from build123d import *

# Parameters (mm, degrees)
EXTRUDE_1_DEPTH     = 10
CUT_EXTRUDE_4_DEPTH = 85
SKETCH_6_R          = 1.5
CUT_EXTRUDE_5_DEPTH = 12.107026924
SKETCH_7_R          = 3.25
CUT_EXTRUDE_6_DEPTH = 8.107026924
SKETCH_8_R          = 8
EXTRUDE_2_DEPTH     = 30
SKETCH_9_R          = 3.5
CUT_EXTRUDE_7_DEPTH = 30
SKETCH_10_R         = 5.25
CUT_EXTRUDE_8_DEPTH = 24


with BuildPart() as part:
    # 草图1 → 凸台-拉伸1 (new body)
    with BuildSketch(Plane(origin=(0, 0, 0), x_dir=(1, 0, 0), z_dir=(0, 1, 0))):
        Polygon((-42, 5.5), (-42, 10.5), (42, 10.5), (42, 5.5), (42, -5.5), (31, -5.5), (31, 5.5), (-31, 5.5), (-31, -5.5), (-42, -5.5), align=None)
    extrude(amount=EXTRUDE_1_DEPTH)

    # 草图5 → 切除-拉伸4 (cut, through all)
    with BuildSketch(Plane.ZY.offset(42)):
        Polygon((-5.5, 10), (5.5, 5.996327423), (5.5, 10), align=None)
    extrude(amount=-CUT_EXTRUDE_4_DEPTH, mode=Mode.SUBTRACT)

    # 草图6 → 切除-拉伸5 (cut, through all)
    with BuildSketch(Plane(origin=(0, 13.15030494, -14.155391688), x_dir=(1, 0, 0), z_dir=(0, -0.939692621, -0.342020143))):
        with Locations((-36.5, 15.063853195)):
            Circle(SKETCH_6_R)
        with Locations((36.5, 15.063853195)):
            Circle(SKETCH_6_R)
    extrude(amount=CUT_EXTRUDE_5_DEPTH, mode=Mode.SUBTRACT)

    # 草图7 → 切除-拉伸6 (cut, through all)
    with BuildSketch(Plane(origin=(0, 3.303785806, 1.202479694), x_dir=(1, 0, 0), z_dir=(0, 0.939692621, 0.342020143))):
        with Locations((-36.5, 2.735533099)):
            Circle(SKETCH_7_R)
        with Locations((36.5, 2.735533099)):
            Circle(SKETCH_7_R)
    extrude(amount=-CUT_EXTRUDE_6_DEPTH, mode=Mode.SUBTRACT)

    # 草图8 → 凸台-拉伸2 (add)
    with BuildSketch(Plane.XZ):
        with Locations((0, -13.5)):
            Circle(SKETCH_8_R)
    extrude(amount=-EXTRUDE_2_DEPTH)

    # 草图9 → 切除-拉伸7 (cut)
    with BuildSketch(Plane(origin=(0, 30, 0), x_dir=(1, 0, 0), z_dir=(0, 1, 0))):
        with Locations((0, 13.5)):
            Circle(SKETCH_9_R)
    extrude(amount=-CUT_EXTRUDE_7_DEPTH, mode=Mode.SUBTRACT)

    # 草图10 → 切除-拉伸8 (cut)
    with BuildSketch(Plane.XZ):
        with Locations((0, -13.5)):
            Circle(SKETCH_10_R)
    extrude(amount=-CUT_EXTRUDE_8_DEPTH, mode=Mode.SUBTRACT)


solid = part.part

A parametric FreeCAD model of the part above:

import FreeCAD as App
import Part
import Sketcher
from FreeCAD import Vector
Q = App.Units.Quantity


def add_polygon(sketch, points):
    """Adds a closed chain of lines whose ends are joined by coincident constraints."""
    first, n = sketch.GeometryCount, len(points)
    for a, b in zip(points, points[1:] + points[:1]):
        sketch.addGeometry(Part.LineSegment(App.Vector(*a, 0), App.Vector(*b, 0)), False)
    for i in range(n):
        sketch.addConstraint(Sketcher.Constraint("Coincident", first + i, 2, first + (i + 1) % n, 1))

doc = App.newDocument("Part")
body = doc.addObject("PartDesign::Body", "Body")

# Sketch on XZ plane
sketch1 = doc.addObject("Sketcher::SketchObject", "Sketch")
body.addObject(sketch1)
sketch1.AttachmentSupport = (doc.XZ_Plane, [""])
sketch1.MapMode = "FlatFace"
add_polygon(sketch1, [(-42, -10), (-42, 6), (-31, 6), (-31, -6), (31, -6), (31, 6), (42, 6), (42, -10)])  # lines 0-7
sketch1.addConstraint([
    Sketcher.Constraint("Vertical", 0),
    Sketcher.Constraint("Horizontal", 1),
    Sketcher.Constraint("Vertical", 2),
    Sketcher.Constraint("Horizontal", 3),
    Sketcher.Constraint("Vertical", 4),
    Sketcher.Constraint("Horizontal", 5),
    Sketcher.Constraint("Vertical", 6),
    Sketcher.Constraint("Horizontal", 7),
    Sketcher.Constraint("Symmetric", 1, 2, 3, 2, -1, 1),
    Sketcher.Constraint("Symmetric", 0, 2, 5, 2, -2),
    Sketcher.Constraint("Equal", 5, 2),
    Sketcher.Constraint("DistanceX", 1, 1, 1, 2, Q("11 mm")),
    Sketcher.Constraint("DistanceX", 3, 1, 3, 2, Q("62 mm")),
    Sketcher.Constraint("DistanceY", 0, 1, 0, 2, Q("16 mm")),
])
pad1 = doc.addObject("PartDesign::Pad", "Pad")
body.addObject(pad1)
pad1.Profile = sketch1
pad1.Length = 10
pad1.Reversed = True

# Sketch on YZ plane
sketch2 = doc.addObject("Sketcher::SketchObject", "Sketch001")
body.addObject(sketch2)
sketch2.AttachmentSupport = (doc.YZ_Plane, [""])
sketch2.MapMode = "FlatFace"
sketch2.AttachmentOffset = App.Placement(Vector(0, 0, -42), App.Rotation())
add_polygon(sketch2, [(10, -5.5), (6, 5.5), (10, 5.5)])  # lines 0-2
sketch2.addConstraint([
    Sketcher.Constraint("Horizontal", 1),
    Sketcher.Constraint("Vertical", 2),
    Sketcher.Constraint("DistanceY", 2, 2, 2, 1, Q("11 mm")),
    Sketcher.Constraint("Angle", 0, Q("110 deg")),
    Sketcher.Constraint("DistanceX", -1, 1, 1, 2, Q("10 mm")),
    Sketcher.Constraint("DistanceY", -1, 1, 0, 2, Q("5.5 mm")),
])
pocket1 = doc.addObject("PartDesign::Pocket", "Pocket")
body.addObject(pocket1)
pocket1.Profile = sketch2
pocket1.Type = "ThroughAll"
pocket1.Reversed = True

# Sketch on an angled plane
sketch3 = doc.addObject("Sketcher::SketchObject", "Sketch002")
body.addObject(sketch3)
sketch3.Placement = App.Placement(Vector(0, 13.150305, -14.155392), App.Rotation(Vector(1, 0, 0), Vector(0, -0.342020143, 0.939692621), Vector(0, -0.939692621, -0.342020143), "ZXY"))
sketch3.addGeometry([
    Part.Circle(Vector(-36.5, 15.1, 0), Vector(0, 0, 1), 1.5),
    Part.Circle(Vector(36.5, 15.1, 0), Vector(0, 0, 1), 1.5),
], False)
sketch3.addConstraint([
    Sketcher.Constraint("Equal", 0, 1),
    Sketcher.Constraint("Symmetric", 0, 3, 1, 3, -2),
    Sketcher.Constraint("Diameter", 0, Q("3 mm")),
    Sketcher.Constraint("DistanceX", 0, 3, 1, 3, Q("73 mm")),
    Sketcher.Constraint("DistanceY", -1, 1, 0, 3, Q("15.063853 mm")),
])
pocket2 = doc.addObject("PartDesign::Pocket", "Pocket001")
body.addObject(pocket2)
pocket2.Profile = sketch3
pocket2.Type = "ThroughAll"
pocket2.Reversed = True

# Sketch on an angled plane
sketch4 = doc.addObject("Sketcher::SketchObject", "Sketch003")
body.addObject(sketch4)
sketch4.Placement = App.Placement(Vector(0, 3.303786, 1.20248), App.Rotation(Vector(1, 0, 0), Vector(0, 0.342020143, -0.939692621), Vector(0, 0.939692621, 0.342020143), "ZXY"))
sketch4.addGeometry([
    Part.Circle(Vector(-36.5, 2.7, 0), Vector(0, 0, 1), 3.2),
    Part.Circle(Vector(36.5, 2.7, 0), Vector(0, 0, 1), 3.2),
], False)
sketch4.addConstraint([
    Sketcher.Constraint("Equal", 0, 1),
    Sketcher.Constraint("Symmetric", 0, 3, 1, 3, -2),
    Sketcher.Constraint("Diameter", 0, Q("6.5 mm")),
    Sketcher.Constraint("DistanceX", 0, 3, 1, 3, Q("73 mm")),
    Sketcher.Constraint("DistanceY", -1, 1, 0, 3, Q("2.735533 mm")),
])
pocket3 = doc.addObject("PartDesign::Pocket", "Pocket002")
body.addObject(pocket3)
pocket3.Profile = sketch4
pocket3.Type = "ThroughAll"

# Sketch on XZ plane
sketch5 = doc.addObject("Sketcher::SketchObject", "Sketch004")
body.addObject(sketch5)
sketch5.AttachmentSupport = (doc.XZ_Plane, [""])
sketch5.MapMode = "FlatFace"
sketch5.addGeometry(Part.Circle(Vector(0, -14, 0), Vector(0, 0, 1), 8), False)
sketch5.addConstraint([
    Sketcher.Constraint("PointOnObject", 0, 3, -2),
    Sketcher.Constraint("Diameter", 0, Q("16 mm")),
    Sketcher.Constraint("DistanceY", 0, 3, -1, 1, Q("13.5 mm")),
])
pad2 = doc.addObject("PartDesign::Pad", "Pad001")
body.addObject(pad2)
pad2.Profile = sketch5
pad2.Length = 30
pad2.Reversed = True

# Sketch on XZ plane
sketch6 = doc.addObject("Sketcher::SketchObject", "Sketch005")
body.addObject(sketch6)
sketch6.AttachmentSupport = (doc.XZ_Plane, [""])
sketch6.MapMode = "FlatFace"
sketch6.AttachmentOffset = App.Placement(Vector(0, 0, -30), App.Rotation())
sketch6.addGeometry(Part.Circle(Vector(0, -13.5, 0), Vector(0, 0, 1), 3.5), False)
sketch6.addConstraint([
    Sketcher.Constraint("PointOnObject", 0, 3, -2),
    Sketcher.Constraint("Diameter", 0, Q("7 mm")),
    Sketcher.Constraint("DistanceY", 0, 3, -1, 1, Q("13.5 mm")),
])
pocket4 = doc.addObject("PartDesign::Pocket", "Pocket003")
body.addObject(pocket4)
pocket4.Profile = sketch6
pocket4.Length = 30
pocket4.Reversed = True

# Sketch on XZ plane
sketch7 = doc.addObject("Sketcher::SketchObject", "Sketch006")
body.addObject(sketch7)
sketch7.AttachmentSupport = (doc.XZ_Plane, [""])
sketch7.MapMode = "FlatFace"
sketch7.addGeometry(Part.Circle(Vector(0, -14, 0), Vector(0, 0, 1), 5), False)
sketch7.addConstraint([
    Sketcher.Constraint("PointOnObject", 0, 3, -2),
    Sketcher.Constraint("Diameter", 0, Q("10.5 mm")),
    Sketcher.Constraint("DistanceY", 0, 3, -1, 1, Q("13.5 mm")),
])
pocket5 = doc.addObject("PartDesign::Pocket", "Pocket004")
body.addObject(pocket5)
pocket5.Profile = sketch7
pocket5.Length = 24

doc.recompute()
